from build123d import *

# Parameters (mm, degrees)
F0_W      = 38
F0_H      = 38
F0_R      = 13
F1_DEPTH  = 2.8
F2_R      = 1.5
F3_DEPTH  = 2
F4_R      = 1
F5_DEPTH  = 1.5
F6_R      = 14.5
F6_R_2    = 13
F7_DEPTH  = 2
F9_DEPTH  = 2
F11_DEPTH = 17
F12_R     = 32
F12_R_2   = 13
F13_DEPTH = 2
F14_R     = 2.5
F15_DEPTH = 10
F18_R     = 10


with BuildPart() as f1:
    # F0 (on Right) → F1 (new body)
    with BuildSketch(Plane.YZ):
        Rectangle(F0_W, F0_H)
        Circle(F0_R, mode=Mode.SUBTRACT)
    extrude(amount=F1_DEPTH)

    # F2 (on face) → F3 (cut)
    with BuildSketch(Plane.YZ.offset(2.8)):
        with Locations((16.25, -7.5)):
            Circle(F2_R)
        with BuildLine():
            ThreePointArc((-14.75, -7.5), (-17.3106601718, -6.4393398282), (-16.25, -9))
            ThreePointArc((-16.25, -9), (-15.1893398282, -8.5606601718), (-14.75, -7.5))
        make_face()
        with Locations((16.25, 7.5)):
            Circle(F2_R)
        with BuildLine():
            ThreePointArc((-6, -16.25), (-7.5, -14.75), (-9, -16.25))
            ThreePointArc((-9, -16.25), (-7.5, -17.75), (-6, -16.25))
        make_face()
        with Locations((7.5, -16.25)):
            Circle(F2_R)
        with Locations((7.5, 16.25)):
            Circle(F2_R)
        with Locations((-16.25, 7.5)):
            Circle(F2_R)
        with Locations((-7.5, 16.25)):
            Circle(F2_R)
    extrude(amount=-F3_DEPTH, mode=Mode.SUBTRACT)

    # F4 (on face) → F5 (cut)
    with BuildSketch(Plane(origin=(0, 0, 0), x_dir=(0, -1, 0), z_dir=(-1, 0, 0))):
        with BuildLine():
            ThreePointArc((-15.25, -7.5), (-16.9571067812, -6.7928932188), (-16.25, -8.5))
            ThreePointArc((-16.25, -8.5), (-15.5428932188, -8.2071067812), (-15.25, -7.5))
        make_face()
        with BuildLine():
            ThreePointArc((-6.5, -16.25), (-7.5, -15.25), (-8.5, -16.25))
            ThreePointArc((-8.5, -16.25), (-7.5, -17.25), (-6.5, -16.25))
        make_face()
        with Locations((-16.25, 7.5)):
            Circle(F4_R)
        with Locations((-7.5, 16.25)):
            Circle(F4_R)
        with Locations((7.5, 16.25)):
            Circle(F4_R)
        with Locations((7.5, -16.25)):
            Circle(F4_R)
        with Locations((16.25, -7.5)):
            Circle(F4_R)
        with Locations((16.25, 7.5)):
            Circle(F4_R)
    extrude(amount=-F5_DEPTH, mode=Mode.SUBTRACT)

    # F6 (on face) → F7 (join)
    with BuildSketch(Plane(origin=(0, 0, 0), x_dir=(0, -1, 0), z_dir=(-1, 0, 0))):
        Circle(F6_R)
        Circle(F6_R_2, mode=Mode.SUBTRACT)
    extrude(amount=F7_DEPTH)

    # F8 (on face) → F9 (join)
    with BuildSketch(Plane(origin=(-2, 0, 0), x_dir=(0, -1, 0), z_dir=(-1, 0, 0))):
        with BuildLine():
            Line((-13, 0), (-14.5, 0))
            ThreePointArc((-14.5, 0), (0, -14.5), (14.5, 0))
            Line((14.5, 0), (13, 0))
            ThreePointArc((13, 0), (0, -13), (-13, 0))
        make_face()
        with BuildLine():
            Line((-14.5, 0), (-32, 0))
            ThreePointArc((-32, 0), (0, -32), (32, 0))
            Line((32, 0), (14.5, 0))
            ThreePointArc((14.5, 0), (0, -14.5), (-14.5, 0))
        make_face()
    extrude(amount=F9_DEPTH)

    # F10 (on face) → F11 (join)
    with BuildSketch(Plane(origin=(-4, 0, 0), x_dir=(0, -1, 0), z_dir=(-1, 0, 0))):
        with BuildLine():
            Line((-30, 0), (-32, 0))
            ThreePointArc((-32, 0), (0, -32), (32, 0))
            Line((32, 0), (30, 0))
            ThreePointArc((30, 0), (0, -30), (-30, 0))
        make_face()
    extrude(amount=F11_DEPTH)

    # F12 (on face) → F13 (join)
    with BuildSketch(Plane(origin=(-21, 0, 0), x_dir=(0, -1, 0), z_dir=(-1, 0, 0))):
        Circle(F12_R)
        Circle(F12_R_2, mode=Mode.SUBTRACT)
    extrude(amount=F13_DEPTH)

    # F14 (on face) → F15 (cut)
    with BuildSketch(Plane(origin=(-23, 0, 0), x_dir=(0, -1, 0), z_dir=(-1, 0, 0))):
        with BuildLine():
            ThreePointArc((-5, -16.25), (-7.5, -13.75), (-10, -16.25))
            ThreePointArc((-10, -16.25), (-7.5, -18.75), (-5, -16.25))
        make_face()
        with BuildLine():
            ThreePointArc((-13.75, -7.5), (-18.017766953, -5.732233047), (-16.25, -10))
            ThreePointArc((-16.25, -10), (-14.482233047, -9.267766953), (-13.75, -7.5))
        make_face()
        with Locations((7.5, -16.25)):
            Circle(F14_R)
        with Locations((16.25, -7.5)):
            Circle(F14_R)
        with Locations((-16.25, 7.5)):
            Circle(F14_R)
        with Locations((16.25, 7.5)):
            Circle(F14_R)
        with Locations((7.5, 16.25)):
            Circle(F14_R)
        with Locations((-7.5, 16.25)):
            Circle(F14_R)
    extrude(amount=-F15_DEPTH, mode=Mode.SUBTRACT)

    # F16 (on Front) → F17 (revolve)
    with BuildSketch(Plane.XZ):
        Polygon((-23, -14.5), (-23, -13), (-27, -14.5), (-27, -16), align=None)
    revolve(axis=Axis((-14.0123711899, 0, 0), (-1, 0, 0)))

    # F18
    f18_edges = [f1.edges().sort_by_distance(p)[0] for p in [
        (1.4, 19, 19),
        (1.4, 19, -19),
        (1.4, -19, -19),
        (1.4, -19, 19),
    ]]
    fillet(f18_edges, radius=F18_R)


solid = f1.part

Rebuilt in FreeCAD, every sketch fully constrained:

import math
import FreeCAD as App
import Part
import Sketcher

V = App.Vector


def edges_at(feature, points):
    """Names of the edges that pass closest to the given points."""
    edges = feature.Shape.Edges
    near = lambda p: min(range(len(edges)), key=lambda i: edges[i].distToShape(Part.Vertex(*p))[0])
    return sorted({f"Edge{near(p) + 1}" for p in points})

doc = App.newDocument("Part")
body = doc.addObject("PartDesign::Body", "Body")

sketch1 = doc.addObject("Sketcher::SketchObject", "Sketch")
body.addObject(sketch1)
sketch1.AttachmentSupport = (doc.YZ_Plane, [""])
sketch1.MapMode = "FlatFace"
sketch1.addGeometry([
    Part.LineSegment(V(-19, 19, 0), V(-19, -19, 0)),
    Part.LineSegment(V(-19, -19, 0), V(19, -19, 0)),
    Part.LineSegment(V(19, -19, 0), V(19, 19, 0)),
    Part.LineSegment(V(19, 19, 0), V(-19, 19, 0)),
    Part.Circle(V(0, 0, 0), V(0, 0, 1), 13),
], False)
sketch1.addConstraint([
    Sketcher.Constraint("Coincident", 0, 2, 1, 1),
    Sketcher.Constraint("Coincident", 1, 2, 2, 1),
    Sketcher.Constraint("Coincident", 2, 2, 3, 1),
    Sketcher.Constraint("Coincident", 3, 2, 0, 1),
    Sketcher.Constraint("Vertical", 0),
    Sketcher.Constraint("Horizontal", 1),
    Sketcher.Constraint("Vertical", 2),
    Sketcher.Constraint("Horizontal", 3),
    Sketcher.Constraint("Coincident", 4, 3, -1, 1),
    Sketcher.Constraint("Symmetric", 0, 2, 2, 2, -1, 1),
    Sketcher.Constraint("Equal", 3, 0),
    Sketcher.Constraint("Diameter", 4, 26.0),
    Sketcher.Constraint("DistanceX", 1, 1, 1, 2, 38.0),
])
pad1 = doc.addObject("PartDesign::Pad", "Pad")
body.addObject(pad1)
pad1.Profile = sketch1
pad1.Length = 2.8

sketch2 = doc.addObject("Sketcher::SketchObject", "Sketch001")
body.addObject(sketch2)
sketch2.AttachmentSupport = (doc.YZ_Plane, [""])
sketch2.MapMode = "FlatFace"
sketch2.AttachmentOffset = App.Placement(V(0, 0, 2.8), App.Rotation())
sketch2.addGeometry([
    Part.Circle(V(16.2, -7.5, 0), V(0, 0, 1), 1.5),
    Part.ArcOfCircle(Part.Circle(V(-16.2, -7.5, 0), V(0, 0, 1), 1.5), math.radians(0), math.radians(270)),
    Part.ArcOfCircle(Part.Circle(V(-16.2, -7.5, 0), V(0, 0, 1), 1.5), math.radians(-90), math.radians(0)),
    Part.Circle(V(16.2, 7.5, 0), V(0, 0, 1), 1.5),
    Part.Circle(V(-7.5, -16.2, 0), V(0, 0, 1), 1.5),
    Part.Circle(V(7.5, -16.2, 0), V(0, 0, 1), 1.5),
    Part.Circle(V(7.5, 16.2, 0), V(0, 0, 1), 1.5),
    Part.Circle(V(-16.2, 7.5, 0), V(0, 0, 1), 1.5),
    Part.Circle(V(-7.5, 16.2, 0), V(0, 0, 1), 1.5),
], False)
sketch2.addConstraint([
    Sketcher.Constraint("Tangent", 1, 1, 2, 2),
    Sketcher.Constraint("Coincident", 2, 1, 1, 2),
    Sketcher.Constraint("Equal", 0, 1),
    Sketcher.Constraint("Equal", 2, 3),
    Sketcher.Constraint("Equal", 3, 4),
    Sketcher.Constraint("Equal", 4, 5),
    Sketcher.Constraint("Equal", 5, 6),
    Sketcher.Constraint("Equal", 6, 7),
    Sketcher.Constraint("Equal", 7, 8),
    Sketcher.Constraint("Symmetric", 1, 3, 3, 3, -1, 1),
    Sketcher.Constraint("Symmetric", 4, 3, 6, 3, -1, 1),
    Sketcher.Constraint("Symmetric", 0, 3, 7, 3, -1, 1),
    Sketcher.Constraint("Symmetric", 5, 3, 8, 3, -1, 1),
    Sketcher.Constraint("Symmetric", 0, 3, 1, 3, -2),
    Sketcher.Constraint("Symmetric", 4, 3, 5, 3, -2),
    Sketcher.Constraint("Horizontal", 2, 3, 1, 1),
    Sketcher.Constraint("Vertical", 7, 3, 2, 1),
    Sketcher.Constraint("Diameter", 0, 3.0),
    Sketcher.Constraint("DistanceY", 2, 1, -1, 1, 9.0),
    Sketcher.Constraint("DistanceX", 4, 3, 5, 3, 15.0),
    Sketcher.Constraint("DistanceX", 1, 3, 0, 3, 32.5),
    Sketcher.Constraint("DistanceY", 5, 3, 6, 3, 32.5),
])
pocket1 = doc.addObject("PartDesign::Pocket", "Pocket")
body.addObject(pocket1)
pocket1.Profile = sketch2
pocket1.Length = 2

sketch3 = doc.addObject("Sketcher::SketchObject", "Sketch002")
body.addObject(sketch3)
sketch3.AttachmentSupport = (doc.YZ_Plane, [""])
sketch3.MapMode = "FlatFace"
sketch3.addGeometry([
    Part.ArcOfCircle(Part.Circle(V(16.2, -7.5, 0), V(0, 0, 1), 1), math.radians(-90), math.radians(180)),
    Part.ArcOfCircle(Part.Circle(V(16.2, -7.5, 0), V(0, 0, 1), 1), math.radians(180), math.radians(270)),
    Part.Circle(V(7.5, -16.2, 0), V(0, 0, 1), 1),
    Part.Circle(V(16.2, 7.5, 0), V(0, 0, 1), 1),
    Part.Circle(V(7.5, 16.2, 0), V(0, 0, 1), 1),
    Part.Circle(V(-7.5, 16.2, 0), V(0, 0, 1), 1),
    Part.Circle(V(-7.5, -16.2, 0), V(0, 0, 1), 1),
    Part.Circle(V(-16.2, -7.5, 0), V(0, 0, 1), 1),
    Part.Circle(V(-16.2, 7.5, 0), V(0, 0, 1), 1),
], False)
sketch3.addConstraint([
    Sketcher.Constraint("Tangent", 0, 1, 1, 2),
    Sketcher.Constraint("Coincident", 1, 1, 0, 2),
    Sketcher.Constraint("Equal", 1, 2),
    Sketcher.Constraint("Equal", 2, 3),
    Sketcher.Constraint("Equal", 3, 4),
    Sketcher.Constraint("Equal", 4, 5),
    Sketcher.Constraint("Equal", 5, 6),
    Sketcher.Constraint("Equal", 6, 7),
    Sketcher.Constraint("Equal", 7, 8),
    Sketcher.Constraint("Symmetric", 2, 3, 5, 3, -1, 1),
    Sketcher.Constraint("Symmetric", 4, 3, 6, 3, -1, 1),
    Sketcher.Constraint("Symmetric", 3, 3, 7, 3, -1, 1),
    Sketcher.Constraint("Symmetric", 0, 3, 8, 3, -1, 1),
    Sketcher.Constraint("Symmetric", 4, 3, 5, 3, -2),
    Sketcher.Constraint("Symmetric", 0, 3, 7, 3, -2),
    Sketcher.Constraint("Horizontal", 7, 3, 1, 1),
    Sketcher.Constraint("Vertical", 3, 3, 0, 1),
    Sketcher.Constraint("Diameter", 2, 2.0),
    Sketcher.Constraint("DistanceY", 0, 3, 3, 3, 15.0),
    Sketcher.Constraint("DistanceX", 5, 3, 4, 3, 15.0),
    Sketcher.Constraint("DistanceY", 2, 3, 4, 3, 32.5),
    Sketcher.Constraint("DistanceX", 7, 3, 0, 3, 32.5),
])
pocket2 = doc.addObject("PartDesign::Pocket", "Pocket001")
body.addObject(pocket2)
pocket2.Profile = sketch3
pocket2.Length = 1.5
pocket2.Reversed = True

sketch4 = doc.addObject("Sketcher::SketchObject", "Sketch003")
body.addObject(sketch4)
sketch4.AttachmentSupport = (doc.YZ_Plane, [""])
sketch4.MapMode = "FlatFace"
sketch4.addGeometry([
    Part.Circle(V(0, 0, 0), V(0, 0, 1), 14),
    Part.Circle(V(0, 0, 0), V(0, 0, 1), 13),
], False)
sketch4.addConstraint([
    Sketcher.Constraint("Coincident", 0, 3, -1, 1),
    Sketcher.Constraint("Coincident", 1, 3, -1, 1),
    Sketcher.Constraint("Diameter", 0, 29.0),
    Sketcher.Constraint("Diameter", 1, 26.0),
])
pad2 = doc.addObject("PartDesign::Pad", "Pad001")
body.addObject(pad2)
pad2.Profile = sketch4
pad2.Length = 2
pad2.Reversed = True

sketch5 = doc.addObject("Sketcher::SketchObject", "Sketch004")
body.addObject(sketch5)
sketch5.AttachmentSupport = (doc.YZ_Plane, [""])
sketch5.MapMode = "FlatFace"
sketch5.AttachmentOffset = App.Placement(V(0, 0, -2), App.Rotation())
sketch5.addGeometry([
    Part.LineSegment(V(13, 0, 0), V(32, 0, 0)),
    Part.ArcOfCircle(Part.Circle(V(0, 0, 0), V(0, 0, 1), 32), math.radians(180), math.radians(360)),
    Part.LineSegment(V(-32, 0, 0), V(-13, 0, 0)),
    Part.ArcOfCircle(Part.Circle(V(0, 0, 0), V(0, 0, 1), 13), math.radians(180), math.radians(360)),
], False)
sketch5.addConstraint([
    Sketcher.Constraint("Coincident", 0, 2, 1, 2),
    Sketcher.Constraint("Coincident", 1, 1, 2, 1),
    Sketcher.Constraint("Coincident", 2, 2, 3, 1),
    Sketcher.Constraint("Coincident", 3, 2, 0, 1),
    Sketcher.Constraint("Horizontal", 0),
    Sketcher.Constraint("Horizontal", 2),
    Sketcher.Constraint("Coincident", 1, 3, -1, 1),
    Sketcher.Constraint("Coincident", 3, 3, -1, 1),
    Sketcher.Constraint("PointOnObject", 0, 2, -1),
    Sketcher.Constraint("PointOnObject", 1, 1, -1),
    Sketcher.Constraint("Radius", 1, 32.0),
    Sketcher.Constraint("Radius", 3, 13.0),
])
pad3 = doc.addObject("PartDesign::Pad", "Pad002")
body.addObject(pad3)
pad3.Profile = sketch5
pad3.Length = 2
pad3.Reversed = True

sketch6 = doc.addObject("Sketcher::SketchObject", "Sketch005")
body.addObject(sketch6)
sketch6.AttachmentSupport = (doc.YZ_Plane, [""])
sketch6.MapMode = "FlatFace"
sketch6.AttachmentOffset = App.Placement(V(0, 0, -4), App.Rotation())
sketch6.addGeometry([
    Part.LineSegment(V(30, 0, 0), V(32, 0, 0)),
    Part.ArcOfCircle(Part.Circle(V(0, 0, 0), V(0, 0, 1), 32), math.radians(180), math.radians(360)),
    Part.LineSegment(V(-32, 0, 0), V(-30, 0, 0)),
    Part.ArcOfCircle(Part.Circle(V(0, 0, 0), V(0, 0, 1), 30), math.radians(180), math.radians(360)),
], False)
sketch6.addConstraint([
    Sketcher.Constraint("Coincident", 0, 2, 1, 2),
    Sketcher.Constraint("Coincident", 1, 1, 2, 1),
    Sketcher.Constraint("Coincident", 2, 2, 3, 1),
    Sketcher.Constraint("Coincident", 3, 2, 0, 1),
    Sketcher.Constraint("Horizontal", 0),
    Sketcher.Constraint("Horizontal", 2),
    Sketcher.Constraint("Coincident", 1, 3, -1, 1),
    Sketcher.Constraint("Coincident", 3, 3, -1, 1),
    Sketcher.Constraint("PointOnObject", 0, 2, -1),
    Sketcher.Constraint("PointOnObject", 1, 1, -1),
    Sketcher.Constraint("Radius", 1, 32.0),
    Sketcher.Constraint("Radius", 3, 30.0),
])
pad4 = doc.addObject("PartDesign::Pad", "Pad003")
body.addObject(pad4)
pad4.Profile = sketch6
pad4.Length = 17
pad4.Reversed = True

sketch7 = doc.addObject("Sketcher::SketchObject", "Sketch006")
body.addObject(sketch7)
sketch7.AttachmentSupport = (doc.YZ_Plane, [""])
sketch7.MapMode = "FlatFace"
sketch7.AttachmentOffset = App.Placement(V(0, 0, -21), App.Rotation())
sketch7.addGeometry([
    Part.Circle(V(0, 0, 0), V(0, 0, 1), 32),
    Part.Circle(V(0, 0, 0), V(0, 0, 1), 13),
], False)
sketch7.addConstraint([
    Sketcher.Constraint("Coincident", 0, 3, -1, 1),
    Sketcher.Constraint("Coincident", 1, 3, -1, 1),
    Sketcher.Constraint("Diameter", 0, 64.0),
    Sketcher.Constraint("Diameter", 1, 26.0),
])
pad5 = doc.addObject("PartDesign::Pad", "Pad004")
body.addObject(pad5)
pad5.Profile = sketch7
pad5.Length = 2
pad5.Reversed = True

sketch8 = doc.addObject("Sketcher::SketchObject", "Sketch007")
body.addObject(sketch8)
sketch8.AttachmentSupport = (doc.YZ_Plane, [""])
sketch8.MapMode = "FlatFace"
sketch8.AttachmentOffset = App.Placement(V(0, 0, -23), App.Rotation())
sketch8.addGeometry([
    Part.Circle(V(7.5, -16.2, 0), V(0, 0, 1), 2.5),
    Part.ArcOfCircle(Part.Circle(V(16.2, -7.5, 0), V(0, 0, 1), 2.5), math.radians(-90), math.radians(180)),
    Part.ArcOfCircle(Part.Circle(V(16.2, -7.5, 0), V(0, 0, 1), 2.5), math.radians(180), math.radians(270)),
    Part.Circle(V(-7.5, -16.2, 0), V(0, 0, 1), 2.5),
    Part.Circle(V(-16.2, -7.5, 0), V(0, 0, 1), 2.5),
    Part.Circle(V(16.2, 7.5, 0), V(0, 0, 1), 2.5),
    Part.Circle(V(-16.2, 7.5, 0), V(0, 0, 1), 2.5),
    Part.Circle(V(-7.5, 16.2, 0), V(0, 0, 1), 2.5),
    Part.Circle(V(7.5, 16.2, 0), V(0, 0, 1), 2.5),
], False)
sketch8.addConstraint([
    Sketcher.Constraint("Tangent", 1, 1, 2, 2),
    Sketcher.Constraint("Coincident", 2, 1, 1, 2),
    Sketcher.Constraint("Equal", 0, 1),
    Sketcher.Constraint("Equal", 2, 3),
    Sketcher.Constraint("Equal", 3, 4),
    Sketcher.Constraint("Equal", 4, 5),
    Sketcher.Constraint("Equal", 5, 6),
    Sketcher.Constraint("Equal", 6, 7),
    Sketcher.Constraint("Equal", 7, 8),
    Sketcher.Constraint("Symmetric", 4, 3, 5, 3, -1, 1),
    Sketcher.Constraint("Symmetric", 1, 3, 6, 3, -1, 1),
    Sketcher.Constraint("Symmetric", 0, 3, 7, 3, -1, 1),
    Sketcher.Constraint("Symmetric", 3, 3, 8, 3, -1, 1),
    Sketcher.Constraint("Symmetric", 0, 3, 3, 3, -2),
    Sketcher.Constraint("Symmetric", 1, 3, 4, 3, -2),
    Sketcher.Constraint("Horizontal", 4, 3, 2, 1),
    Sketcher.Constraint("Vertical", 5, 3, 1, 1),
    Sketcher.Constraint("Diameter", 0, 5.0),
    Sketcher.Constraint("DistanceY", 1, 1, -1, 1, 10.0),
    Sketcher.Constraint("DistanceX", 3, 3, 0, 3, 15.0),
    Sketcher.Constraint("DistanceX", 4, 3, 1, 3, 32.5),
    Sketcher.Constraint("DistanceY", 3, 3, 7, 3, 32.5),
])
pocket3 = doc.addObject("PartDesign::Pocket", "Pocket002")
body.addObject(pocket3)
pocket3.Profile = sketch8
pocket3.Length = 10
pocket3.Reversed = True

sketch9 = doc.addObject("Sketcher::SketchObject", "Sketch008")
body.addObject(sketch9)
sketch9.AttachmentSupport = (doc.XZ_Plane, [""])
sketch9.MapMode = "FlatFace"
sketch9.addGeometry([
    Part.LineSegment(V(-23, -14.5, 0), V(-23, -13, 0)),
    Part.LineSegment(V(-23, -13, 0), V(-27, -14.5, 0)),
    Part.LineSegment(V(-27, -14.5, 0), V(-27, -16, 0)),
    Part.LineSegment(V(-27, -16, 0), V(-23, -14.5, 0)),
], False)
sketch9.addConstraint([
    Sketcher.Constraint("Coincident", 0, 2, 1, 1),
    Sketcher.Constraint("Coincident", 1, 2, 2, 1),
    Sketcher.Constraint("Coincident", 2, 2, 3, 1),
    Sketcher.Constraint("Coincident", 3, 2, 0, 1),
    Sketcher.Constraint("Vertical", 0),
    Sketcher.Constraint("Vertical", 2),
    Sketcher.Constraint("Parallel", 1, 3),
    Sketcher.Constraint("Horizontal", 1, 2, 3, 2),
    Sketcher.Constraint("DistanceY", 0, 1, 0, 2, 1.5),
    Sketcher.Constraint("DistanceX", 0, 2, -1, 1, 23.0),
    Sketcher.Constraint("DistanceY", 0, 2, -1, 1, 13.0),
    Sketcher.Constraint("DistanceX", 1, 2, -1, 1, 27.0),
])
revolution = doc.addObject("PartDesign::Revolution", "Revolution")
body.addObject(revolution)
revolution.Profile = sketch9
revolution.ReferenceAxis = (sketch9, ["H_Axis"])
revolution.Angle = 360
doc.recompute()

fillet = doc.addObject("PartDesign::Fillet", "Fillet")
body.addObject(fillet)
fillet.Base = (revolution, edges_at(revolution, [
    (1.4, 19, 19),
    (1.4, 19, -19),
    (1.4, -19, -19),
    (1.4, -19, 19),
]))
fillet.Radius = 10

doc.recompute()
